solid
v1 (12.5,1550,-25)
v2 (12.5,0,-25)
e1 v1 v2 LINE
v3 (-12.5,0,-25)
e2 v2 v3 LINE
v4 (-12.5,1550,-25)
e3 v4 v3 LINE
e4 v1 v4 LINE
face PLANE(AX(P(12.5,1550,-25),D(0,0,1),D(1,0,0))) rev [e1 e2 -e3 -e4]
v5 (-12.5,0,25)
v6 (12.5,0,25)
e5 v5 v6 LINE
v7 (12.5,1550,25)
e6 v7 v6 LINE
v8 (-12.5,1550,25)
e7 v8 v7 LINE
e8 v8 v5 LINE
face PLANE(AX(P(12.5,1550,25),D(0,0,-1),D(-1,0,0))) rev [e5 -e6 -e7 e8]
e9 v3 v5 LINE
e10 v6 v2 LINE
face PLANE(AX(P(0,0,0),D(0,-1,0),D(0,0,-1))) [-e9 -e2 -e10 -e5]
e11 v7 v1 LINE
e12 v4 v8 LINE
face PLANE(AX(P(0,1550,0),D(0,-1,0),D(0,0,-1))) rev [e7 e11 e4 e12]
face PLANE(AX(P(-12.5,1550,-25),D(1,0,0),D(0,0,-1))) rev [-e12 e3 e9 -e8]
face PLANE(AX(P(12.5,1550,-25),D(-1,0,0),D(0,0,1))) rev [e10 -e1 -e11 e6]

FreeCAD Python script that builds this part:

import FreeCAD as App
import Part
import Sketcher

doc = App.newDocument("Part")
body = doc.addObject("PartDesign::Body", "Body")

# Sketch on XZ plane
sketch1 = body.newObject("Sketcher::SketchObject", "Sketch")
sketch1.AttachmentSupport = (doc.getObject("XZ_Plane"), [""])
sketch1.MapMode = "FlatFace"
sketch1.addGeometry([
    Part.LineSegment(App.Vector(-12.5, -25, 0), App.Vector(-12.5, 25, 0)),
    Part.LineSegment(App.Vector(-12.5, 25, 0), App.Vector(12.5, 25, 0)),
    Part.LineSegment(App.Vector(12.5, 25, 0), App.Vector(12.5, -25, 0)),
    Part.LineSegment(App.Vector(12.5, -25, 0), App.Vector(-12.5, -25, 0)),
], False)
sketch1.addConstraint([
    Sketcher.Constraint("Coincident", 0, 2, 1, 1),
    Sketcher.Constraint("Coincident", 1, 2, 2, 1),
    Sketcher.Constraint("Coincident", 2, 2, 3, 1),
    Sketcher.Constraint("Coincident", 3, 2, 0, 1),
    Sketcher.Constraint("Vertical", 0),
    Sketcher.Constraint("Horizontal", 1),
    Sketcher.Constraint("Vertical", 2),
    Sketcher.Constraint("Horizontal", 3),
    Sketcher.Constraint("Symmetric", 0, 2, 2, 2, -1, 1),
    Sketcher.Constraint("DistanceX", 1, 1, 1, 2, 25.0),
    Sketcher.Constraint("DistanceY", 0, 1, 0, 2, 50.0),
])
pad1 = body.newObject("PartDesign::Pad", "Pad")
pad1.Profile = sketch1
pad1.Length = 1550
pad1.Reversed = True

doc.recompute()
